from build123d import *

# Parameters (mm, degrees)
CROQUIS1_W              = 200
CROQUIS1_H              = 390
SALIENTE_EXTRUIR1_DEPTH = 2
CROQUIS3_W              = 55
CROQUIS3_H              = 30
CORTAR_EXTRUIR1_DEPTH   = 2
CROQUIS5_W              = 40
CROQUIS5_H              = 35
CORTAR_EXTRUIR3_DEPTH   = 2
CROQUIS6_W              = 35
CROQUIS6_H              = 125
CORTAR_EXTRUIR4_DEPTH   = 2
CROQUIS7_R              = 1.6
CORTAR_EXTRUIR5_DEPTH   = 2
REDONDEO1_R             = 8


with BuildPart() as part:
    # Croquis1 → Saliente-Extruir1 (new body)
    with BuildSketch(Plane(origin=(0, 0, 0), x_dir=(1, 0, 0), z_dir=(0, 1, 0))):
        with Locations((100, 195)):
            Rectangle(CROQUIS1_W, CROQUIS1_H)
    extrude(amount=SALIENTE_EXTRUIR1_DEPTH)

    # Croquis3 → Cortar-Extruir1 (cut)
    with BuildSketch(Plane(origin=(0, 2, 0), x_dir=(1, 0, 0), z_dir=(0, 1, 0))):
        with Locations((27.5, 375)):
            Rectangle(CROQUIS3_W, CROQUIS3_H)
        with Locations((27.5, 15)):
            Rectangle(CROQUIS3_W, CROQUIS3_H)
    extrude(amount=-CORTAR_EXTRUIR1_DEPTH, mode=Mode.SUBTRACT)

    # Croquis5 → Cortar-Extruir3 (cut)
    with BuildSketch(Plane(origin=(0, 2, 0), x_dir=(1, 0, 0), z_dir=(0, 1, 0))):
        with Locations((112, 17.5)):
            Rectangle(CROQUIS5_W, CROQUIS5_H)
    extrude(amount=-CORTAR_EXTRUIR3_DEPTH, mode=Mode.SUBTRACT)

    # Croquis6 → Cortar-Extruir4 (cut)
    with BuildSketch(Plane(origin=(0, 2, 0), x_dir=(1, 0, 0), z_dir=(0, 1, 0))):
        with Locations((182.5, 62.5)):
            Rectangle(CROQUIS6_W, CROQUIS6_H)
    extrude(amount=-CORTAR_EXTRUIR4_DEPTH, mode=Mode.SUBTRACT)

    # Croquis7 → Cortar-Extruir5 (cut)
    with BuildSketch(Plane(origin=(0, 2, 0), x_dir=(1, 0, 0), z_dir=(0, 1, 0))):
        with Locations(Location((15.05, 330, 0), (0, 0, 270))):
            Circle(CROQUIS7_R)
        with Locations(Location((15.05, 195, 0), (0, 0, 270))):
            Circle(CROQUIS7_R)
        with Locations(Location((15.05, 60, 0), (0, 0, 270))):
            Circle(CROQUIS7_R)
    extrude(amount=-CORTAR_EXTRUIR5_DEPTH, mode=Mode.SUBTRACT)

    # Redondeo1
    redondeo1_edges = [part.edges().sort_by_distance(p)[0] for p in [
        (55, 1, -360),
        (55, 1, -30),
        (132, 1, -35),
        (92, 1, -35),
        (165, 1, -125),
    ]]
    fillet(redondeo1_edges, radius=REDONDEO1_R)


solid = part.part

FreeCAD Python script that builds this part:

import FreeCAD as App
import Part
import Sketcher

V = App.Vector


def edges_at(feature, points):
    """Names of the edges that pass closest to the given points."""
    edges = feature.Shape.Edges
    near = lambda p: min(range(len(edges)), key=lambda i: edges[i].distToShape(Part.Vertex(*p))[0])
    return sorted({f"Edge{near(p) + 1}" for p in points})

doc = App.newDocument("Part")
body = doc.addObject("PartDesign::Body", "Body")

# Sketch on XZ plane
sketch1 = doc.addObject("Sketcher::SketchObject", "Sketch")
body.addObject(sketch1)
sketch1.AttachmentSupport = (doc.XZ_Plane, [""])
sketch1.MapMode = "FlatFace"
sketch1.addGeometry([
    Part.LineSegment(V(0, -390, 0), V(0, 0, 0)),
    Part.LineSegment(V(0, 0, 0), V(200, 0, 0)),
    Part.LineSegment(V(200, 0, 0), V(200, -390, 0)),
    Part.LineSegment(V(200, -390, 0), V(0, -390, 0)),
], False)
sketch1.addConstraint([
    Sketcher.Constraint("Coincident", 0, 2, 1, 1),
    Sketcher.Constraint("Coincident", 1, 2, 2, 1),
    Sketcher.Constraint("Coincident", 2, 2, 3, 1),
    Sketcher.Constraint("Coincident", 3, 2, 0, 1),
    Sketcher.Constraint("Vertical", 0),
    Sketcher.Constraint("Horizontal", 1),
    Sketcher.Constraint("Vertical", 2),
    Sketcher.Constraint("Horizontal", 3),
    Sketcher.Constraint("Coincident", 0, 2, -1, 1),
    Sketcher.Constraint("DistanceX", 1, 1, 1, 2, 200.0),
    Sketcher.Constraint("DistanceY", 0, 1, 0, 2, 390.0),
])
pad1 = doc.addObject("PartDesign::Pad", "Pad")
body.addObject(pad1)
pad1.Profile = sketch1
pad1.Length = 2
pad1.Reversed = True

# Sketch on XZ plane
sketch2 = doc.addObject("Sketcher::SketchObject", "Sketch001")
body.addObject(sketch2)
sketch2.AttachmentSupport = (doc.XZ_Plane, [""])
sketch2.MapMode = "FlatFace"
sketch2.AttachmentOffset = App.Placement(V(0, 0, -2), App.Rotation())
sketch2.addGeometry([
    Part.LineSegment(V(0, -390, 0), V(0, -360, 0)),  # 0
    Part.LineSegment(V(0, -360, 0), V(55, -360, 0)),  # 1
    Part.LineSegment(V(55, -360, 0), V(55, -390, 0)),  # 2
    Part.LineSegment(V(55, -390, 0), V(0, -390, 0)),  # 3
    Part.LineSegment(V(0, -30, 0), V(0, 0, 0)),  # 4
    Part.LineSegment(V(0, 0, 0), V(55, 0, 0)),  # 5
    Part.LineSegment(V(55, 0, 0), V(55, -30, 0)),  # 6
    Part.LineSegment(V(55, -30, 0), V(0, -30, 0)),  # 7
], False)
sketch2.addConstraint([
    Sketcher.Constraint("Coincident", 0, 2, 1, 1),
    Sketcher.Constraint("Coincident", 1, 2, 2, 1),
    Sketcher.Constraint("Coincident", 2, 2, 3, 1),
    Sketcher.Constraint("Coincident", 3, 2, 0, 1),
    Sketcher.Constraint("Coincident", 4, 2, 5, 1),
    Sketcher.Constraint("Coincident", 5, 2, 6, 1),
    Sketcher.Constraint("Coincident", 6, 2, 7, 1),
    Sketcher.Constraint("Coincident", 7, 2, 4, 1),
    Sketcher.Constraint("Vertical", 0),
    Sketcher.Constraint("Horizontal", 1),
    Sketcher.Constraint("Vertical", 2),
    Sketcher.Constraint("Horizontal", 3),
    Sketcher.Constraint("Vertical", 4),
    Sketcher.Constraint("Horizontal", 5),
    Sketcher.Constraint("Vertical", 6),
    Sketcher.Constraint("Horizontal", 7),
    Sketcher.Constraint("Coincident", 4, 2, -1, 1),
    Sketcher.Constraint("PointOnObject", 0, 2, -2),
    Sketcher.Constraint("Vertical", 2, 2, 5, 2),
    Sketcher.Constraint("Equal", 2, 4),
    Sketcher.Constraint("DistanceX", 1, 1, 1, 2, 55.0),
    Sketcher.Constraint("DistanceY", 0, 1, 0, 2, 30.0),
    Sketcher.Constraint("DistanceY", 0, 2, -1, 1, 360.0),
])
pocket1 = doc.addObject("PartDesign::Pocket", "Pocket")
body.addObject(pocket1)
pocket1.Profile = sketch2
pocket1.Length = 2
pocket1.Reversed = True

# Sketch on XZ plane
sketch3 = doc.addObject("Sketcher::SketchObject", "Sketch002")
body.addObject(sketch3)
sketch3.AttachmentSupport = (doc.XZ_Plane, [""])
sketch3.MapMode = "FlatFace"
sketch3.AttachmentOffset = App.Placement(V(0, 0, -2), App.Rotation())
sketch3.addGeometry([
    Part.LineSegment(V(92, -35, 0), V(92, 0, 0)),
    Part.LineSegment(V(92, 0, 0), V(132, 0, 0)),
    Part.LineSegment(V(132, 0, 0), V(132, -35, 0)),
    Part.LineSegment(V(132, -35, 0), V(92, -35, 0)),
], False)
sketch3.addConstraint([
    Sketcher.Constraint("Coincident", 0, 2, 1, 1),
    Sketcher.Constraint("Coincident", 1, 2, 2, 1),
    Sketcher.Constraint("Coincident", 2, 2, 3, 1),
    Sketcher.Constraint("Coincident", 3, 2, 0, 1),
    Sketcher.Constraint("Vertical", 0),
    Sketcher.Constraint("Horizontal", 1),
    Sketcher.Constraint("Vertical", 2),
    Sketcher.Constraint("Horizontal", 3),
    Sketcher.Constraint("PointOnObject", 0, 2, -1),
    Sketcher.Constraint("DistanceX", 1, 1, 1, 2, 40.0),
    Sketcher.Constraint("DistanceY", 0, 1, 0, 2, 35.0),
    Sketcher.Constraint("DistanceX", -1, 1, 0, 2, 92.0),
])
pocket2 = doc.addObject("PartDesign::Pocket", "Pocket001")
body.addObject(pocket2)
pocket2.Profile = sketch3
pocket2.Length = 2
pocket2.Reversed = True

# Sketch on XZ plane
sketch4 = doc.addObject("Sketcher::SketchObject", "Sketch003")
body.addObject(sketch4)
sketch4.AttachmentSupport = (doc.XZ_Plane, [""])
sketch4.MapMode = "FlatFace"
sketch4.AttachmentOffset = App.Placement(V(0, 0, -2), App.Rotation())
sketch4.addGeometry([
    Part.LineSegment(V(165, -125, 0), V(165, 0, 0)),
    Part.LineSegment(V(165, 0, 0), V(200, 0, 0)),
    Part.LineSegment(V(200, 0, 0), V(200, -125, 0)),
    Part.LineSegment(V(200, -125, 0), V(165, -125, 0)),
], False)
sketch4.addConstraint([
    Sketcher.Constraint("Coincident", 0, 2, 1, 1),
    Sketcher.Constraint("Coincident", 1, 2, 2, 1),
    Sketcher.Constraint("Coincident", 2, 2, 3, 1),
    Sketcher.Constraint("Coincident", 3, 2, 0, 1),
    Sketcher.Constraint("Vertical", 0),
    Sketcher.Constraint("Horizontal", 1),
    Sketcher.Constraint("Vertical", 2),
    Sketcher.Constraint("Horizontal", 3),
    Sketcher.Constraint("PointOnObject", 0, 2, -1),
    Sketcher.Constraint("DistanceX", 1, 1, 1, 2, 35.0),
    Sketcher.Constraint("DistanceY", 0, 1, 0, 2, 125.0),
    Sketcher.Constraint("DistanceX", -1, 1, 0, 2, 165.0),
])
pocket3 = doc.addObject("PartDesign::Pocket", "Pocket002")
body.addObject(pocket3)
pocket3.Profile = sketch4
pocket3.Length = 2
pocket3.Reversed = True

# Sketch on XZ plane
sketch5 = doc.addObject("Sketcher::SketchObject", "Sketch004")
body.addObject(sketch5)
sketch5.AttachmentSupport = (doc.XZ_Plane, [""])
sketch5.MapMode = "FlatFace"
sketch5.AttachmentOffset = App.Placement(V(0, 0, -2), App.Rotation())
sketch5.addGeometry([
    Part.Circle(V(15.1, -330, 0), V(0, 0, 1), 1.6),
    Part.Circle(V(15.1, -195, 0), V(0, 0, 1), 1.6),
    Part.Circle(V(15.1, -60, 0), V(0, 0, 1), 1.6),
], False)
sketch5.addConstraint([
    Sketcher.Constraint("Equal", 0, 1),
    Sketcher.Constraint("Equal", 1, 2),
    Sketcher.Constraint("Vertical", 0, 3, 1, 3),
    Sketcher.Constraint("Vertical", 1, 3, 2, 3),
    Sketcher.Constraint("Diameter", 0, 3.2),
    Sketcher.Constraint("DistanceY", 0, 3, -1, 1, 330.0),
    Sketcher.Constraint("DistanceY", 1, 3, -1, 1, 195.0),
    Sketcher.Constraint("DistanceY", 2, 3, -1, 1, 60.0),
    Sketcher.Constraint("DistanceX", -1, 1, 0, 3, 15.05),
])
pocket4 = doc.addObject("PartDesign::Pocket", "Pocket003")
body.addObject(pocket4)
pocket4.Profile = sketch5
pocket4.Length = 2
pocket4.Reversed = True
doc.recompute()

fillet = doc.addObject("PartDesign::Fillet", "Fillet")
body.addObject(fillet)
fillet.Base = (pocket4, edges_at(pocket4, [
    (55, 1, -360),
    (55, 1, -30),
    (132, 1, -35),
    (92, 1, -35),
    (165, 1, -125),
]))
fillet.Radius = 8

doc.recompute()
